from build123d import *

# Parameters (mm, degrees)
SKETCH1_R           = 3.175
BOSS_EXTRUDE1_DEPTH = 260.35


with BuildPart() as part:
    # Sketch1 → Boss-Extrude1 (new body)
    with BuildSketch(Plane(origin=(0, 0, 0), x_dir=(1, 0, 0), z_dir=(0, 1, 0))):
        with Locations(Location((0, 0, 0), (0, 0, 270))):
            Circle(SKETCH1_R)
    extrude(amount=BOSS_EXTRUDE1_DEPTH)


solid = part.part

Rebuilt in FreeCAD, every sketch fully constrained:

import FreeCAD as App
import Part
import Sketcher
from FreeCAD import Vector
Q = App.Units.Quantity

doc = App.newDocument("Part")
body = doc.addObject("PartDesign::Body", "Body")

# Sketch on XZ plane
sketch1 = body.newObject("Sketcher::SketchObject", "Sketch")
sketch1.AttachmentSupport = (doc.getObject("XZ_Plane"), [""])
sketch1.MapMode = "FlatFace"
sketch1.addGeometry(Part.Circle(Vector(0, 0, 0), Vector(0, 0, 1), 3.2), False)
sketch1.addConstraint(Sketcher.Constraint("Coincident", 0, 3, -1, 1))
sketch1.addConstraint(Sketcher.Constraint("Diameter", 0, Q("0.25 in")))
pad1 = body.newObject("PartDesign::Pad", "Pad")
pad1.Profile = sketch1
pad1.Length = Q("10.25 in")
pad1.Reversed = True

doc.recompute()
